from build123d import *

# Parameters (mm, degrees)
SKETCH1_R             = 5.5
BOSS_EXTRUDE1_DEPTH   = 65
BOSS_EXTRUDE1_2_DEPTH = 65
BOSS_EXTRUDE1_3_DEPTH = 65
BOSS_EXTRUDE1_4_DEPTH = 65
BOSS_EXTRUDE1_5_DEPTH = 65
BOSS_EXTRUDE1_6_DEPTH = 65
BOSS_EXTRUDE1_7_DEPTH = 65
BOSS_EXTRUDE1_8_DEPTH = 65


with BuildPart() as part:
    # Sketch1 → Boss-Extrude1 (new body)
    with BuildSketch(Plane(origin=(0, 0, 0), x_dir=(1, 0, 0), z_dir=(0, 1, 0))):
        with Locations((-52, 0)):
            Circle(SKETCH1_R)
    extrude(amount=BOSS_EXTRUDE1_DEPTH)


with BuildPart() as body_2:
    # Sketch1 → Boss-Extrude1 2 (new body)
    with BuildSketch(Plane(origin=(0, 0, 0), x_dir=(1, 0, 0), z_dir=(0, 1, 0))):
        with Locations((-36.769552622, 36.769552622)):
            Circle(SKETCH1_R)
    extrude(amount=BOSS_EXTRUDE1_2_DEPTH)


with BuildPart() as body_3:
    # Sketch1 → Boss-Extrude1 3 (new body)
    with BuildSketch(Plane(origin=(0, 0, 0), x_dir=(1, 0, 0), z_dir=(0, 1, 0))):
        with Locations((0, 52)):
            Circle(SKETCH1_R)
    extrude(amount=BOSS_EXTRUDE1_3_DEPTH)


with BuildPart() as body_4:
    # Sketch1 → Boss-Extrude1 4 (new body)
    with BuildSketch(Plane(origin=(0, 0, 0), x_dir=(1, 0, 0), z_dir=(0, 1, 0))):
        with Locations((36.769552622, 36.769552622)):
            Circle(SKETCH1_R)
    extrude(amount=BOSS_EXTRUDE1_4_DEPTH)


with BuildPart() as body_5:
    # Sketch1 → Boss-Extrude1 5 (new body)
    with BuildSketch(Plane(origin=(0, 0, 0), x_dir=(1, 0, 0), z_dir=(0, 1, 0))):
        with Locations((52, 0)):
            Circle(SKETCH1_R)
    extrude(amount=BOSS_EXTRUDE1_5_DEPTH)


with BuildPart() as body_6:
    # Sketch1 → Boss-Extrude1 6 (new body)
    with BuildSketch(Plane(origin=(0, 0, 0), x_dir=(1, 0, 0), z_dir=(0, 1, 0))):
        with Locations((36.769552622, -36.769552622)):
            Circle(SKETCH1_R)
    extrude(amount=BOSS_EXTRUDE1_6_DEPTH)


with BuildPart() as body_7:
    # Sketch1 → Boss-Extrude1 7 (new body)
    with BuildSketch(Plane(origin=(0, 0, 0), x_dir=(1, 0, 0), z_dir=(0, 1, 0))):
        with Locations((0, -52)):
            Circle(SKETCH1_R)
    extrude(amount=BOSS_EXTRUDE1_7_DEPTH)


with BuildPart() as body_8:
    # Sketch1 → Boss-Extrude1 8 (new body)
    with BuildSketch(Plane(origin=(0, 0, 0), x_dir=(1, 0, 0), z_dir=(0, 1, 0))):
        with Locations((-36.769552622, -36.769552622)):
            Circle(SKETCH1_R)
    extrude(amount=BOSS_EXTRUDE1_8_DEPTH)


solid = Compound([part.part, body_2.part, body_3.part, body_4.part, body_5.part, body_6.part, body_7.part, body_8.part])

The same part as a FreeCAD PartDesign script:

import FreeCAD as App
import Part
import Sketcher
from FreeCAD import Vector
Q = App.Units.Quantity

doc = App.newDocument("Part")
params = doc.addObject("Spreadsheet::Sheet", "Params")
for row, (alias, value) in enumerate([
    ("sketch1_diameter", "11 mm"),
    ("pad1_length", "65 mm"),
    ("sketch2_diameter", "11 mm"),
    ("pad2_length", "65 mm"),
    ("sketch3_diameter", "11 mm"),
    ("pad3_length", "65 mm"),
    ("sketch4_diameter", "11 mm"),
    ("pad4_length", "65 mm"),
    ("sketch5_diameter", "11 mm"),
    ("pad5_length", "65 mm"),
    ("sketch6_diameter", "11 mm"),
    ("pad6_length", "65 mm"),
    ("sketch7_diameter", "11 mm"),
    ("pad7_length", "65 mm"),
    ("sketch8_diameter", "11 mm"),
    ("pad8_length", "65 mm"),
], start=1):
    params.set(f"A{row}", alias)
    params.set(f"B{row}", "=" + value)
    params.setAlias(f"B{row}", alias)

body = doc.addObject("PartDesign::Body", "Body")

sketch1 = body.newObject("Sketcher::SketchObject", "Sketch")
sketch1.AttachmentSupport = (doc.getObject("XZ_Plane"), [""])
sketch1.MapMode = "FlatFace"
sketch1.addGeometry(Part.Circle(Vector(-52, 0, 0), Vector(0, 0, 1), 6), False)
sketch1.addConstraint(Sketcher.Constraint("PointOnObject", 0, 3, -1))
sketch1.addConstraint(Sketcher.Constraint("Diameter", 0, Q("11 mm")))
sketch1.addConstraint(Sketcher.Constraint("DistanceX", 0, 3, -1, 1, Q("52 mm")))
sketch1.setExpression("Constraints[1]", "Params.sketch1_diameter")
pad1 = body.newObject("PartDesign::Pad", "Pad")
pad1.Profile = sketch1
pad1.setExpression("Length", "Params.pad1_length")
pad1.Reversed = True
body2 = doc.addObject("PartDesign::Body", "Body001")

sketch2 = body2.newObject("Sketcher::SketchObject", "Sketch001")
sketch2.AttachmentSupport = (doc.getObject("XZ_Plane001"), [""])
sketch2.MapMode = "FlatFace"
sketch2.addGeometry(Part.Circle(Vector(-37, -37, 0), Vector(0, 0, 1), 6), False)
sketch2.addConstraint(Sketcher.Constraint("Diameter", 0, Q("11 mm")))
sketch2.addConstraint(Sketcher.Constraint("DistanceX", 0, 3, -1, 1, Q("36.769553 mm")))
sketch2.addConstraint(Sketcher.Constraint("DistanceY", 0, 3, -1, 1, Q("36.769553 mm")))
sketch2.setExpression("Constraints[0]", "Params.sketch2_diameter")
pad2 = body2.newObject("PartDesign::Pad", "Pad001")
pad2.Profile = sketch2
pad2.setExpression("Length", "Params.pad2_length")
pad2.Reversed = True
body3 = doc.addObject("PartDesign::Body", "Body002")

sketch3 = body3.newObject("Sketcher::SketchObject", "Sketch002")
sketch3.AttachmentSupport = (doc.getObject("XZ_Plane002"), [""])
sketch3.MapMode = "FlatFace"
sketch3.addGeometry(Part.Circle(Vector(0, -52, 0), Vector(0, 0, 1), 6), False)
sketch3.addConstraint(Sketcher.Constraint("PointOnObject", 0, 3, -2))
sketch3.addConstraint(Sketcher.Constraint("Diameter", 0, Q("11 mm")))
sketch3.addConstraint(Sketcher.Constraint("DistanceY", 0, 3, -1, 1, Q("52 mm")))
sketch3.setExpression("Constraints[1]", "Params.sketch3_diameter")
pad3 = body3.newObject("PartDesign::Pad", "Pad002")
pad3.Profile = sketch3
pad3.setExpression("Length", "Params.pad3_length")
pad3.Reversed = True
body4 = doc.addObject("PartDesign::Body", "Body003")

sketch4 = body4.newObject("Sketcher::SketchObject", "Sketch003")
sketch4.AttachmentSupport = (doc.getObject("XZ_Plane003"), [""])
sketch4.MapMode = "FlatFace"
sketch4.addGeometry(Part.Circle(Vector(37, -37, 0), Vector(0, 0, 1), 6), False)
sketch4.addConstraint(Sketcher.Constraint("Diameter", 0, Q("11 mm")))
sketch4.addConstraint(Sketcher.Constraint("DistanceX", -1, 1, 0, 3, Q("36.769553 mm")))
sketch4.addConstraint(Sketcher.Constraint("DistanceY", 0, 3, -1, 1, Q("36.769553 mm")))
sketch4.setExpression("Constraints[0]", "Params.sketch4_diameter")
pad4 = body4.newObject("PartDesign::Pad", "Pad003")
pad4.Profile = sketch4
pad4.setExpression("Length", "Params.pad4_length")
pad4.Reversed = True
body5 = doc.addObject("PartDesign::Body", "Body004")

sketch5 = body5.newObject("Sketcher::SketchObject", "Sketch004")
sketch5.AttachmentSupport = (doc.getObject("XZ_Plane004"), [""])
sketch5.MapMode = "FlatFace"
sketch5.addGeometry(Part.Circle(Vector(52, 0, 0), Vector(0, 0, 1), 6), False)
sketch5.addConstraint(Sketcher.Constraint("PointOnObject", 0, 3, -1))
sketch5.addConstraint(Sketcher.Constraint("Diameter", 0, Q("11 mm")))
sketch5.addConstraint(Sketcher.Constraint("DistanceX", -1, 1, 0, 3, Q("52 mm")))
sketch5.setExpression("Constraints[1]", "Params.sketch5_diameter")
pad5 = body5.newObject("PartDesign::Pad", "Pad004")
pad5.Profile = sketch5
pad5.setExpression("Length", "Params.pad5_length")
pad5.Reversed = True
body6 = doc.addObject("PartDesign::Body", "Body005")

sketch6 = body6.newObject("Sketcher::SketchObject", "Sketch005")
sketch6.AttachmentSupport = (doc.getObject("XZ_Plane005"), [""])
sketch6.MapMode = "FlatFace"
sketch6.addGeometry(Part.Circle(Vector(37, 37, 0), Vector(0, 0, 1), 6), False)
sketch6.addConstraint(Sketcher.Constraint("Diameter", 0, Q("11 mm")))
sketch6.addConstraint(Sketcher.Constraint("DistanceX", -1, 1, 0, 3, Q("36.769553 mm")))
sketch6.addConstraint(Sketcher.Constraint("DistanceY", -1, 1, 0, 3, Q("36.769553 mm")))
sketch6.setExpression("Constraints[0]", "Params.sketch6_diameter")
pad6 = body6.newObject("PartDesign::Pad", "Pad005")
pad6.Profile = sketch6
pad6.setExpression("Length", "Params.pad6_length")
pad6.Reversed = True
body7 = doc.addObject("PartDesign::Body", "Body006")

sketch7 = body7.newObject("Sketcher::SketchObject", "Sketch006")
sketch7.AttachmentSupport = (doc.getObject("XZ_Plane006"), [""])
sketch7.MapMode = "FlatFace"
sketch7.addGeometry(Part.Circle(Vector(0, 52, 0), Vector(0, 0, 1), 6), False)
sketch7.addConstraint(Sketcher.Constraint("PointOnObject", 0, 3, -2))
sketch7.addConstraint(Sketcher.Constraint("Diameter", 0, Q("11 mm")))
sketch7.addConstraint(Sketcher.Constraint("DistanceY", -1, 1, 0, 3, Q("52 mm")))
sketch7.setExpression("Constraints[1]", "Params.sketch7_diameter")
pad7 = body7.newObject("PartDesign::Pad", "Pad006")
pad7.Profile = sketch7
pad7.setExpression("Length", "Params.pad7_length")
pad7.Reversed = True
body8 = doc.addObject("PartDesign::Body", "Body007")

sketch8 = body8.newObject("Sketcher::SketchObject", "Sketch007")
sketch8.AttachmentSupport = (doc.getObject("XZ_Plane007"), [""])
sketch8.MapMode = "FlatFace"
sketch8.addGeometry(Part.Circle(Vector(-37, 37, 0), Vector(0, 0, 1), 6), False)
sketch8.addConstraint(Sketcher.Constraint("Diameter", 0, Q("11 mm")))
sketch8.addConstraint(Sketcher.Constraint("DistanceX", 0, 3, -1, 1, Q("36.769553 mm")))
sketch8.addConstraint(Sketcher.Constraint("DistanceY", -1, 1, 0, 3, Q("36.769553 mm")))
sketch8.setExpression("Constraints[0]", "Params.sketch8_diameter")
pad8 = body8.newObject("PartDesign::Pad", "Pad007")
pad8.Profile = sketch8
pad8.setExpression("Length", "Params.pad8_length")
pad8.Reversed = True

doc.recompute()
